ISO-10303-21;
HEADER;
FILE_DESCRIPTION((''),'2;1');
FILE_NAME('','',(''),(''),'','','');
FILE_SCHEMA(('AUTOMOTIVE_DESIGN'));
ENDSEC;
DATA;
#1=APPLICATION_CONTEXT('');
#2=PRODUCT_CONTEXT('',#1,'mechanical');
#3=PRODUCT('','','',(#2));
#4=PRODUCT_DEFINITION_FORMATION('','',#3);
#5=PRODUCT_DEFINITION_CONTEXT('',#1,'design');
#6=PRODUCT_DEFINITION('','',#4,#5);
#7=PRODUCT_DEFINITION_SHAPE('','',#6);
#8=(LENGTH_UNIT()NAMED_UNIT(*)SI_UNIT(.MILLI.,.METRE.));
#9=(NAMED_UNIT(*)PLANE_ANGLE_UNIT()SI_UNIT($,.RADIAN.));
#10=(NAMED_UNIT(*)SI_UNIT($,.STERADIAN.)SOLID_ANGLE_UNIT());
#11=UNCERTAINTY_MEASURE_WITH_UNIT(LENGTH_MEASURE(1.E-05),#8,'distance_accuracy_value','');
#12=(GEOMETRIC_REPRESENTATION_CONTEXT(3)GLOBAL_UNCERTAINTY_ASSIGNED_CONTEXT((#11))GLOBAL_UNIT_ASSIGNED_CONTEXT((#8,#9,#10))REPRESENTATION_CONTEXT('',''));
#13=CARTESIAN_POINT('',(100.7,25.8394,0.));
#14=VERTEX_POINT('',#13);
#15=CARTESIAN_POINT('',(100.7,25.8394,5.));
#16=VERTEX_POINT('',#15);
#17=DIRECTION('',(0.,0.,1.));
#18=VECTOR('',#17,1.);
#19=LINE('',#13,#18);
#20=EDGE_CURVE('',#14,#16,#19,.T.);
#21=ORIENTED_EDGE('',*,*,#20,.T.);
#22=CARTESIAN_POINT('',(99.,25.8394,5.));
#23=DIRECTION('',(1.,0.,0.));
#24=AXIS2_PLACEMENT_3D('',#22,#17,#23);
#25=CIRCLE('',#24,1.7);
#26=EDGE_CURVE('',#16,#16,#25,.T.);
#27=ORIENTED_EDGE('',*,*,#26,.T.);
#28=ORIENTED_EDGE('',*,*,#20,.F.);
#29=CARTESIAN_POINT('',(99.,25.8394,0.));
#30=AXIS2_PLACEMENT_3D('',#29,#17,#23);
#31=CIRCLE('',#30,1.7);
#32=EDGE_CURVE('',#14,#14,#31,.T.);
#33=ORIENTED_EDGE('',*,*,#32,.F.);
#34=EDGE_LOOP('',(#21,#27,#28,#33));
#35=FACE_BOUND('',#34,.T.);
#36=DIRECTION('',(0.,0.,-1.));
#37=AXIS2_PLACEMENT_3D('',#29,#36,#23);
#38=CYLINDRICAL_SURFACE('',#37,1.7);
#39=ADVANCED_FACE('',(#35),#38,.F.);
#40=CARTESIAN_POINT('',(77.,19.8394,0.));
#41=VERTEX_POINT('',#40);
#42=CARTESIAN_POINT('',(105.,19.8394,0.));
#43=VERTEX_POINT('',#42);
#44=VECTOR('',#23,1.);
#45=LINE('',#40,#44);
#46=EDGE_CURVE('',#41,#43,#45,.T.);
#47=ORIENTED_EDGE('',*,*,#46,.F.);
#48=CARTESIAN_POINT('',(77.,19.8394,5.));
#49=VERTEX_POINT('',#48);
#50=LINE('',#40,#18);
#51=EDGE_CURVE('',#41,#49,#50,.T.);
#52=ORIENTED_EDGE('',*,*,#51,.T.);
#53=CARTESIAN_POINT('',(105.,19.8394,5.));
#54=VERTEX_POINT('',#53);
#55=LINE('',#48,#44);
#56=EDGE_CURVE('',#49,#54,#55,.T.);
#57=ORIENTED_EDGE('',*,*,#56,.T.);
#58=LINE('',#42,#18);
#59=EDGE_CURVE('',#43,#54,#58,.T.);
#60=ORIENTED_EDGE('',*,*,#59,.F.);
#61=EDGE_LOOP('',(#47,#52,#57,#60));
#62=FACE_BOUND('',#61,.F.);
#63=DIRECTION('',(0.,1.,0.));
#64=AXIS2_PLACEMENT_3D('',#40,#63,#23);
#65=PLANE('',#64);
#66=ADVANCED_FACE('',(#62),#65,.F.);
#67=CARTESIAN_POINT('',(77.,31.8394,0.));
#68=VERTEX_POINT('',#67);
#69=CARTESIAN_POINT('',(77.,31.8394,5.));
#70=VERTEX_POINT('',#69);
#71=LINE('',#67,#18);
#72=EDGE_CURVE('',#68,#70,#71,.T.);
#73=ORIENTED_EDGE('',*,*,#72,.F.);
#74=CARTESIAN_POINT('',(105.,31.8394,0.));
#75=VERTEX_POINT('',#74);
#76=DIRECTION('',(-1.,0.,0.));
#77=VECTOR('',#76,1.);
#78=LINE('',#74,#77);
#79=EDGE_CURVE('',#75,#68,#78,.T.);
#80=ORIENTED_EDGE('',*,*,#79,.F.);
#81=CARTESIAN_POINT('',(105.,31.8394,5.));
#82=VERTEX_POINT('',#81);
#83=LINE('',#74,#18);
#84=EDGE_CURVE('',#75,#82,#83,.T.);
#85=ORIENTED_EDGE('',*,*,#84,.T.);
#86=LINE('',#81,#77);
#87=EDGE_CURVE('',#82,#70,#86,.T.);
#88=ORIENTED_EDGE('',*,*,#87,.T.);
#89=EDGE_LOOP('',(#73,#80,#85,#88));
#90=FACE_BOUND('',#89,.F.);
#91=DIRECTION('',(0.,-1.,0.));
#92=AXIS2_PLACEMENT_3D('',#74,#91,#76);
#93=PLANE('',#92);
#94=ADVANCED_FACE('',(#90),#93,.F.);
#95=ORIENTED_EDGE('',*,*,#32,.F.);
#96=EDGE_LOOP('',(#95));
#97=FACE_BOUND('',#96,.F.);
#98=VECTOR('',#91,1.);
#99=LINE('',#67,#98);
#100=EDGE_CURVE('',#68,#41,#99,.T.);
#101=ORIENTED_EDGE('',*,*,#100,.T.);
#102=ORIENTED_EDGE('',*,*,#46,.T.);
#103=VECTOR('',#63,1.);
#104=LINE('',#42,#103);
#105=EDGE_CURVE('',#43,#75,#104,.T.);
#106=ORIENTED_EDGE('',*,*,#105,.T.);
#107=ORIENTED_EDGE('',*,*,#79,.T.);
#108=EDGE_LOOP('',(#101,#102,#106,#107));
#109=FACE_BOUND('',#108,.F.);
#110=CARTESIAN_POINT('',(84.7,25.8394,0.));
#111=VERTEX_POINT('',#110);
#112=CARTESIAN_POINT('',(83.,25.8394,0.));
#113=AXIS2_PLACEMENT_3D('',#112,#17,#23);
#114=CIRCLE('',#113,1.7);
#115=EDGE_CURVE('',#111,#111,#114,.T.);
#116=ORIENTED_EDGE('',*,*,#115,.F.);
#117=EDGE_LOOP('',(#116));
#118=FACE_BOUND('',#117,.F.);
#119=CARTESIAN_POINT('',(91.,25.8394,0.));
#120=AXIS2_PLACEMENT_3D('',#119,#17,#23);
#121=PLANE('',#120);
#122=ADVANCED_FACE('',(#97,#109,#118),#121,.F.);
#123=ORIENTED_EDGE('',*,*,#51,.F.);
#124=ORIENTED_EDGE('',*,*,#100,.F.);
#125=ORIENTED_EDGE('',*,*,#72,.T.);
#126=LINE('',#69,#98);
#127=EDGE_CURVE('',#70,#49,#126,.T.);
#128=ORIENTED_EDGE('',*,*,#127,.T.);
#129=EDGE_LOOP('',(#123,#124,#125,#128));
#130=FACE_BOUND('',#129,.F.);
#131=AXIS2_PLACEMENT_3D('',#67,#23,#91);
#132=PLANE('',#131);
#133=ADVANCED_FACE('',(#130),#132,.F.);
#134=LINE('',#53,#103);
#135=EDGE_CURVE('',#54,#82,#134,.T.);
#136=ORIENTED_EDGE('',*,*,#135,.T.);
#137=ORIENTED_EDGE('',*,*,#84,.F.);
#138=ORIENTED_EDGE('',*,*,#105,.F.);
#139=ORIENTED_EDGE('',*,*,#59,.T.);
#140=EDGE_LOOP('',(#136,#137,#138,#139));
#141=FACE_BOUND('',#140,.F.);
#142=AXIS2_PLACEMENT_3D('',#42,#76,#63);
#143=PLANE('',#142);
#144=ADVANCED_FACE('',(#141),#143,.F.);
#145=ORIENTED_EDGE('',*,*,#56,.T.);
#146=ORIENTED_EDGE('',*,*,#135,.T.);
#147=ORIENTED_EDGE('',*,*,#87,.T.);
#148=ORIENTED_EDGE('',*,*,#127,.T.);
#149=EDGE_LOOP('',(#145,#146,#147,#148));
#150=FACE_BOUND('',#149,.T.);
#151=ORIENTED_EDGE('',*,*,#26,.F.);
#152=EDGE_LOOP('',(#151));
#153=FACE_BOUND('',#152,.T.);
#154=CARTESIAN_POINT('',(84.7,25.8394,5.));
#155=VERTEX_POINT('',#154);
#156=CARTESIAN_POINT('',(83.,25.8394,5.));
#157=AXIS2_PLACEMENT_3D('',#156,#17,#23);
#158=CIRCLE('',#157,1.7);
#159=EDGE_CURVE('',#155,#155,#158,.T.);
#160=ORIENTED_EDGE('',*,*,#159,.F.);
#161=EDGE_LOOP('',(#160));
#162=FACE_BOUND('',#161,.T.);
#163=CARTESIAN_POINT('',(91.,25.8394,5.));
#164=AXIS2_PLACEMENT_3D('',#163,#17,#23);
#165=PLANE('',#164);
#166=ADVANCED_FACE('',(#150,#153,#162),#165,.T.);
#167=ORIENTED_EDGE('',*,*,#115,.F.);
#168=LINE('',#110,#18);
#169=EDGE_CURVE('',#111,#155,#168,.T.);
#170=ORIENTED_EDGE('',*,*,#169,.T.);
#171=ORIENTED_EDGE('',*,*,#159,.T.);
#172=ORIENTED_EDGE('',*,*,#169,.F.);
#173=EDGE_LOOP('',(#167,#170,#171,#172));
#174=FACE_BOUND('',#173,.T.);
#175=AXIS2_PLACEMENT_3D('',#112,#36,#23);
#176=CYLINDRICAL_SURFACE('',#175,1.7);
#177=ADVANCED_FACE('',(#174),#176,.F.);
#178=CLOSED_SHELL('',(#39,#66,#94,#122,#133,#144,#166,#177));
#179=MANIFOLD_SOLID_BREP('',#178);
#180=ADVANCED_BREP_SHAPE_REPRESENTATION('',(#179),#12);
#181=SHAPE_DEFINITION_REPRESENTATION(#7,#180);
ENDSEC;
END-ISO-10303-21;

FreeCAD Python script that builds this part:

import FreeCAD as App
import Part
import Sketcher
from FreeCAD import Vector
Q = App.Units.Quantity


def add_polygon(sketch, points):
    """Adds a closed chain of lines whose ends are joined by coincident constraints."""
    first, n = sketch.GeometryCount, len(points)
    for a, b in zip(points, points[1:] + points[:1]):
        sketch.addGeometry(Part.LineSegment(App.Vector(*a, 0), App.Vector(*b, 0)), False)
    for i in range(n):
        sketch.addConstraint(Sketcher.Constraint("Coincident", first + i, 2, first + (i + 1) % n, 1))

doc = App.newDocument("Part")
params = doc.addObject("Spreadsheet::Sheet", "Params")
for row, (alias, value) in enumerate([
    ("sketch1_diameter", "3.4 mm"),
    ("sketch1_height", "12 mm"),
    ("pad1_length", "5 mm"),
], start=1):
    params.set(f"A{row}", alias)
    params.set(f"B{row}", "=" + value)
    params.setAlias(f"B{row}", alias)

body = doc.addObject("PartDesign::Body", "Body")

sketch1 = body.newObject("Sketcher::SketchObject", "Sketch")
sketch1.AttachmentSupport = (doc.getObject("XY_Plane"), [""])
sketch1.MapMode = "FlatFace"
add_polygon(sketch1, [(77, 31.8), (77, 19.8), (105, 19.8), (105, 31.8)])
sketch1.addGeometry(Part.Circle(Vector(83, 25.8, 0), Vector(0, 0, 1), 1.7), False)
sketch1.addGeometry(Part.Circle(Vector(99, 25.8, 0), Vector(0, 0, 1), 1.7), False)
sketch1.addConstraint(Sketcher.Constraint("Vertical", 0))
sketch1.addConstraint(Sketcher.Constraint("Horizontal", 1))
sketch1.addConstraint(Sketcher.Constraint("Vertical", 2))
sketch1.addConstraint(Sketcher.Constraint("Horizontal", 3))
sketch1.addConstraint(Sketcher.Constraint("Equal", 4, 5))
sketch1.addConstraint(Sketcher.Constraint("Horizontal", 4, 3, 5, 3))
sketch1.addConstraint(Sketcher.Constraint("DistanceX", -1, 1, 0, 2, Q("77 mm")))
sketch1.addConstraint(Sketcher.Constraint("DistanceX", -1, 1, 1, 2, Q("105 mm")))
sketch1.addConstraint(Sketcher.Constraint("Diameter", 4, Q("3.4 mm")))
sketch1.addConstraint(Sketcher.Constraint("DistanceY", 0, 2, 0, 1, Q("12 mm")))
sketch1.addConstraint(Sketcher.Constraint("DistanceX", -1, 1, 4, 3, Q("83 mm")))
sketch1.addConstraint(Sketcher.Constraint("DistanceX", -1, 1, 5, 3, Q("99 mm")))
sketch1.addConstraint(Sketcher.Constraint("DistanceY", 0, 2, 4, 3, Q("6 mm")))
sketch1.addConstraint(Sketcher.Constraint("DistanceY", -1, 1, 4, 3, Q("25.8394 mm")))
sketch1.setExpression("Constraints[12]", "Params.sketch1_diameter")
sketch1.setExpression("Constraints[13]", "Params.sketch1_height")
pad1 = body.newObject("PartDesign::Pad", "Pad")
pad1.Profile = sketch1
pad1.setExpression("Length", "Params.pad1_length")

doc.recompute()
